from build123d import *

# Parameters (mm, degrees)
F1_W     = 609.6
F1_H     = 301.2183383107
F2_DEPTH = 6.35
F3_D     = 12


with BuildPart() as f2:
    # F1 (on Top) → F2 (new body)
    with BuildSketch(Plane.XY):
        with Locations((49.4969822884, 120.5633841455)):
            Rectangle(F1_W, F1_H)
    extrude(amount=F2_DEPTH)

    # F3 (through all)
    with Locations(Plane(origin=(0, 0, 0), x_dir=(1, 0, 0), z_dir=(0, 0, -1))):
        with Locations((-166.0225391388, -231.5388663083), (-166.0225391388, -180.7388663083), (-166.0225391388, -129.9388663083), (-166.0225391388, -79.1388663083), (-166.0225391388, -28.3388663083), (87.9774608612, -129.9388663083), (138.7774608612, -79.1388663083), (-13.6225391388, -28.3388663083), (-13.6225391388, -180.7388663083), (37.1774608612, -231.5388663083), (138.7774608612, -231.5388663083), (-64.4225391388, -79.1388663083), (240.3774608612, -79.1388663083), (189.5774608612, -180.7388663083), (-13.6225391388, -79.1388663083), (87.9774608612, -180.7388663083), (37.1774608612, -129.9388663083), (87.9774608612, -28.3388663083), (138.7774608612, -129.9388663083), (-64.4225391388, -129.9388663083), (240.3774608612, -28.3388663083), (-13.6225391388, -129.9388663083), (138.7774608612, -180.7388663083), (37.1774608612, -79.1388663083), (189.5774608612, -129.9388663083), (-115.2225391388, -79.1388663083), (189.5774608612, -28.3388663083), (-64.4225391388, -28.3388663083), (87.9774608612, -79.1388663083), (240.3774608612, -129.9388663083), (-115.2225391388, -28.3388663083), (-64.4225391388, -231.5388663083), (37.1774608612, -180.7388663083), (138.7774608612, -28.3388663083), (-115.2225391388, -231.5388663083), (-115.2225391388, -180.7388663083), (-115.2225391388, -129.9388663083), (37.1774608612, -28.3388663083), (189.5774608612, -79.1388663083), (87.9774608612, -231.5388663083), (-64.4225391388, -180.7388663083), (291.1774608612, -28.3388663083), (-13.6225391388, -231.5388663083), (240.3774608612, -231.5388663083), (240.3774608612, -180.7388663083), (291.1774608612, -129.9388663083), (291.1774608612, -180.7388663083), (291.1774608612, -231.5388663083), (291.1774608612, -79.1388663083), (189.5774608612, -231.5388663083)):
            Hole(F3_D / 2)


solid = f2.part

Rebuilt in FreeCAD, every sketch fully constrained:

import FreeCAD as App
import Part
import Sketcher

V = App.Vector
Q = App.Units.Quantity

doc = App.newDocument("Part")
body = doc.addObject("PartDesign::Body", "Body")

# Sketch on XY plane
sketch1 = doc.addObject("Sketcher::SketchObject", "Sketch")
body.addObject(sketch1)
sketch1.AttachmentSupport = (doc.XY_Plane, [""])
sketch1.MapMode = "FlatFace"
sketch1.addGeometry(Part.LineSegment(V(-255, 271, 0), V(-255, -30, 0)), False)
sketch1.addGeometry(Part.LineSegment(V(-255, -30, 0), V(354, -30, 0)), False)
sketch1.addGeometry(Part.LineSegment(V(354, -30, 0), V(354, 271, 0)), False)
sketch1.addGeometry(Part.LineSegment(V(354, 271, 0), V(-255, 271, 0)), False)
sketch1.addConstraint(Sketcher.Constraint("Coincident", 0, 2, 1, 1))
sketch1.addConstraint(Sketcher.Constraint("Coincident", 1, 2, 2, 1))
sketch1.addConstraint(Sketcher.Constraint("Coincident", 2, 2, 3, 1))
sketch1.addConstraint(Sketcher.Constraint("Coincident", 3, 2, 0, 1))
sketch1.addConstraint(Sketcher.Constraint("Vertical", 0))
sketch1.addConstraint(Sketcher.Constraint("Horizontal", 1))
sketch1.addConstraint(Sketcher.Constraint("Vertical", 2))
sketch1.addConstraint(Sketcher.Constraint("Horizontal", 3))
sketch1.addConstraint(Sketcher.Constraint("DistanceX", 1, 1, 1, 2, Q("24 in")))
sketch1.addConstraint(Sketcher.Constraint("DistanceX", 0, 2, -1, 1, Q("10.0512999 in")))
sketch1.addConstraint(Sketcher.Constraint("DistanceY", 0, 2, 0, 1, Q("301.218338 mm")))
sketch1.addConstraint(Sketcher.Constraint("DistanceY", 0, 2, -1, 1, Q("30.045785 mm")))
pad1 = doc.addObject("PartDesign::Pad", "Pad")
body.addObject(pad1)
pad1.Profile = sketch1
pad1.Length = Q("0.25 in")

# Sketch on XY plane
sketch2 = doc.addObject("Sketcher::SketchObject", "Sketch001")
body.addObject(sketch2)
sketch2.AttachmentSupport = (doc.XY_Plane, [""])
sketch2.MapMode = "FlatFace"
sketch2.addGeometry(Part.Circle(V(-166, 232, 0), V(0, 0, 1), 6), False)
sketch2.addGeometry(Part.Circle(V(-166, 181, 0), V(0, 0, 1), 6), False)
sketch2.addGeometry(Part.Circle(V(-166, 130, 0), V(0, 0, 1), 6), False)
sketch2.addGeometry(Part.Circle(V(-166, 79, 0), V(0, 0, 1), 6), False)
sketch2.addGeometry(Part.Circle(V(-166, 28, 0), V(0, 0, 1), 6), False)
sketch2.addGeometry(Part.Circle(V(88, 130, 0), V(0, 0, 1), 6), False)
sketch2.addGeometry(Part.Circle(V(139, 79, 0), V(0, 0, 1), 6), False)
sketch2.addGeometry(Part.Circle(V(-14, 28, 0), V(0, 0, 1), 6), False)
sketch2.addGeometry(Part.Circle(V(-14, 181, 0), V(0, 0, 1), 6), False)
sketch2.addGeometry(Part.Circle(V(37, 232, 0), V(0, 0, 1), 6), False)
sketch2.addGeometry(Part.Circle(V(139, 232, 0), V(0, 0, 1), 6), False)
sketch2.addGeometry(Part.Circle(V(-64, 79, 0), V(0, 0, 1), 6), False)
sketch2.addGeometry(Part.Circle(V(240, 79, 0), V(0, 0, 1), 6), False)
sketch2.addGeometry(Part.Circle(V(190, 181, 0), V(0, 0, 1), 6), False)
sketch2.addGeometry(Part.Circle(V(-14, 79, 0), V(0, 0, 1), 6), False)
sketch2.addGeometry(Part.Circle(V(88, 181, 0), V(0, 0, 1), 6), False)
sketch2.addGeometry(Part.Circle(V(37, 130, 0), V(0, 0, 1), 6), False)
sketch2.addGeometry(Part.Circle(V(88, 28, 0), V(0, 0, 1), 6), False)
sketch2.addGeometry(Part.Circle(V(139, 130, 0), V(0, 0, 1), 6), False)
sketch2.addGeometry(Part.Circle(V(-64, 130, 0), V(0, 0, 1), 6), False)
sketch2.addGeometry(Part.Circle(V(240, 28, 0), V(0, 0, 1), 6), False)
sketch2.addGeometry(Part.Circle(V(-14, 130, 0), V(0, 0, 1), 6), False)
sketch2.addGeometry(Part.Circle(V(139, 181, 0), V(0, 0, 1), 6), False)
sketch2.addGeometry(Part.Circle(V(37, 79, 0), V(0, 0, 1), 6), False)
sketch2.addGeometry(Part.Circle(V(190, 130, 0), V(0, 0, 1), 6), False)
sketch2.addGeometry(Part.Circle(V(-115, 79, 0), V(0, 0, 1), 6), False)
sketch2.addGeometry(Part.Circle(V(190, 28, 0), V(0, 0, 1), 6), False)
sketch2.addGeometry(Part.Circle(V(-64, 28, 0), V(0, 0, 1), 6), False)
sketch2.addGeometry(Part.Circle(V(88, 79, 0), V(0, 0, 1), 6), False)
sketch2.addGeometry(Part.Circle(V(240, 130, 0), V(0, 0, 1), 6), False)
sketch2.addGeometry(Part.Circle(V(-115, 28, 0), V(0, 0, 1), 6), False)
sketch2.addGeometry(Part.Circle(V(-64, 232, 0), V(0, 0, 1), 6), False)
sketch2.addGeometry(Part.Circle(V(37, 181, 0), V(0, 0, 1), 6), False)
sketch2.addGeometry(Part.Circle(V(139, 28, 0), V(0, 0, 1), 6), False)
sketch2.addGeometry(Part.Circle(V(-115, 232, 0), V(0, 0, 1), 6), False)
sketch2.addGeometry(Part.Circle(V(-115, 181, 0), V(0, 0, 1), 6), False)
sketch2.addGeometry(Part.Circle(V(-115, 130, 0), V(0, 0, 1), 6), False)
sketch2.addGeometry(Part.Circle(V(37, 28, 0), V(0, 0, 1), 6), False)
sketch2.addGeometry(Part.Circle(V(190, 79, 0), V(0, 0, 1), 6), False)
sketch2.addGeometry(Part.Circle(V(88, 232, 0), V(0, 0, 1), 6), False)
sketch2.addGeometry(Part.Circle(V(-64, 181, 0), V(0, 0, 1), 6), False)
sketch2.addGeometry(Part.Circle(V(291, 28, 0), V(0, 0, 1), 6), False)
sketch2.addGeometry(Part.Circle(V(-14, 232, 0), V(0, 0, 1), 6), False)
sketch2.addGeometry(Part.Circle(V(240, 232, 0), V(0, 0, 1), 6), False)
sketch2.addGeometry(Part.Circle(V(240, 181, 0), V(0, 0, 1), 6), False)
sketch2.addGeometry(Part.Circle(V(291, 130, 0), V(0, 0, 1), 6), False)
sketch2.addGeometry(Part.Circle(V(291, 181, 0), V(0, 0, 1), 6), False)
sketch2.addGeometry(Part.Circle(V(291, 232, 0), V(0, 0, 1), 6), False)
sketch2.addGeometry(Part.Circle(V(291, 79, 0), V(0, 0, 1), 6), False)
sketch2.addGeometry(Part.Circle(V(190, 232, 0), V(0, 0, 1), 6), False)
sketch2.addConstraint(Sketcher.Constraint("Equal", 0, 1))
sketch2.addConstraint(Sketcher.Constraint("Equal", 1, 2))
sketch2.addConstraint(Sketcher.Constraint("Equal", 2, 3))
sketch2.addConstraint(Sketcher.Constraint("Equal", 3, 4))
sketch2.addConstraint(Sketcher.Constraint("Equal", 4, 5))
sketch2.addConstraint(Sketcher.Constraint("Equal", 5, 6))
sketch2.addConstraint(Sketcher.Constraint("Equal", 6, 7))
sketch2.addConstraint(Sketcher.Constraint("Equal", 7, 8))
sketch2.addConstraint(Sketcher.Constraint("Equal", 8, 9))
sketch2.addConstraint(Sketcher.Constraint("Equal", 9, 10))
sketch2.addConstraint(Sketcher.Constraint("Equal", 10, 11))
sketch2.addConstraint(Sketcher.Constraint("Equal", 11, 12))
sketch2.addConstraint(Sketcher.Constraint("Equal", 12, 13))
sketch2.addConstraint(Sketcher.Constraint("Equal", 13, 14))
sketch2.addConstraint(Sketcher.Constraint("Equal", 14, 15))
sketch2.addConstraint(Sketcher.Constraint("Equal", 15, 16))
sketch2.addConstraint(Sketcher.Constraint("Equal", 16, 17))
sketch2.addConstraint(Sketcher.Constraint("Equal", 17, 18))
sketch2.addConstraint(Sketcher.Constraint("Equal", 18, 19))
sketch2.addConstraint(Sketcher.Constraint("Equal", 19, 20))
sketch2.addConstraint(Sketcher.Constraint("Equal", 20, 21))
sketch2.addConstraint(Sketcher.Constraint("Equal", 21, 22))
sketch2.addConstraint(Sketcher.Constraint("Equal", 22, 23))
sketch2.addConstraint(Sketcher.Constraint("Equal", 23, 24))
sketch2.addConstraint(Sketcher.Constraint("Equal", 24, 25))
sketch2.addConstraint(Sketcher.Constraint("Equal", 25, 26))
sketch2.addConstraint(Sketcher.Constraint("Equal", 26, 27))
sketch2.addConstraint(Sketcher.Constraint("Equal", 27, 28))
sketch2.addConstraint(Sketcher.Constraint("Equal", 28, 29))
sketch2.addConstraint(Sketcher.Constraint("Equal", 29, 30))
sketch2.addConstraint(Sketcher.Constraint("Equal", 30, 31))
sketch2.addConstraint(Sketcher.Constraint("Equal", 31, 32))
sketch2.addConstraint(Sketcher.Constraint("Equal", 32, 33))
sketch2.addConstraint(Sketcher.Constraint("Equal", 33, 34))
sketch2.addConstraint(Sketcher.Constraint("Equal", 34, 35))
sketch2.addConstraint(Sketcher.Constraint("Equal", 35, 36))
sketch2.addConstraint(Sketcher.Constraint("Equal", 36, 37))
sketch2.addConstraint(Sketcher.Constraint("Equal", 37, 38))
sketch2.addConstraint(Sketcher.Constraint("Equal", 38, 39))
sketch2.addConstraint(Sketcher.Constraint("Equal", 39, 40))
sketch2.addConstraint(Sketcher.Constraint("Equal", 40, 41))
sketch2.addConstraint(Sketcher.Constraint("Equal", 41, 42))
sketch2.addConstraint(Sketcher.Constraint("Equal", 42, 43))
sketch2.addConstraint(Sketcher.Constraint("Equal", 43, 44))
sketch2.addConstraint(Sketcher.Constraint("Equal", 44, 45))
sketch2.addConstraint(Sketcher.Constraint("Equal", 45, 46))
sketch2.addConstraint(Sketcher.Constraint("Equal", 46, 47))
sketch2.addConstraint(Sketcher.Constraint("Equal", 47, 48))
sketch2.addConstraint(Sketcher.Constraint("Equal", 48, 49))
sketch2.addConstraint(Sketcher.Constraint("Horizontal", 2, 3, 5, 3))
sketch2.addConstraint(Sketcher.Constraint("Horizontal", 3, 3, 6, 3))
sketch2.addConstraint(Sketcher.Constraint("Horizontal", 4, 3, 7, 3))
sketch2.addConstraint(Sketcher.Constraint("Horizontal", 1, 3, 8, 3))
sketch2.addConstraint(Sketcher.Constraint("Horizontal", 0, 3, 9, 3))
sketch2.addConstraint(Sketcher.Constraint("Horizontal", 9, 3, 10, 3))
sketch2.addConstraint(Sketcher.Constraint("Horizontal", 6, 3, 11, 3))
sketch2.addConstraint(Sketcher.Constraint("Horizontal", 11, 3, 12, 3))
sketch2.addConstraint(Sketcher.Constraint("Horizontal", 8, 3, 13, 3))
sketch2.addConstraint(Sketcher.Constraint("Horizontal", 12, 3, 14, 3))
sketch2.addConstraint(Sketcher.Constraint("Horizontal", 13, 3, 15, 3))
sketch2.addConstraint(Sketcher.Constraint("Horizontal", 5, 3, 16, 3))
sketch2.addConstraint(Sketcher.Constraint("Horizontal", 7, 3, 17, 3))
sketch2.addConstraint(Sketcher.Constraint("Horizontal", 16, 3, 18, 3))
sketch2.addConstraint(Sketcher.Constraint("Horizontal", 18, 3, 19, 3))
sketch2.addConstraint(Sketcher.Constraint("Horizontal", 17, 3, 20, 3))
sketch2.addConstraint(Sketcher.Constraint("Horizontal", 19, 3, 21, 3))
sketch2.addConstraint(Sketcher.Constraint("Horizontal", 15, 3, 22, 3))
sketch2.addConstraint(Sketcher.Constraint("Horizontal", 14, 3, 23, 3))
sketch2.addConstraint(Sketcher.Constraint("Horizontal", 21, 3, 24, 3))
sketch2.addConstraint(Sketcher.Constraint("Horizontal", 23, 3, 25, 3))
sketch2.addConstraint(Sketcher.Constraint("Horizontal", 20, 3, 26, 3))
sketch2.addConstraint(Sketcher.Constraint("Horizontal", 26, 3, 27, 3))
sketch2.addConstraint(Sketcher.Constraint("Horizontal", 25, 3, 28, 3))
sketch2.addConstraint(Sketcher.Constraint("Horizontal", 24, 3, 29, 3))
sketch2.addConstraint(Sketcher.Constraint("Horizontal", 27, 3, 30, 3))
sketch2.addConstraint(Sketcher.Constraint("Horizontal", 10, 3, 31, 3))
sketch2.addConstraint(Sketcher.Constraint("Horizontal", 22, 3, 32, 3))
sketch2.addConstraint(Sketcher.Constraint("Horizontal", 30, 3, 33, 3))
sketch2.addConstraint(Sketcher.Constraint("Horizontal", 31, 3, 34, 3))
sketch2.addConstraint(Sketcher.Constraint("Horizontal", 32, 3, 35, 3))
sketch2.addConstraint(Sketcher.Constraint("Horizontal", 29, 3, 36, 3))
sketch2.addConstraint(Sketcher.Constraint("Horizontal", 33, 3, 37, 3))
sketch2.addConstraint(Sketcher.Constraint("Horizontal", 28, 3, 38, 3))
sketch2.addConstraint(Sketcher.Constraint("Horizontal", 34, 3, 39, 3))
sketch2.addConstraint(Sketcher.Constraint("Horizontal", 35, 3, 40, 3))
sketch2.addConstraint(Sketcher.Constraint("Horizontal", 37, 3, 41, 3))
sketch2.addConstraint(Sketcher.Constraint("Horizontal", 39, 3, 42, 3))
sketch2.addConstraint(Sketcher.Constraint("Horizontal", 42, 3, 43, 3))
sketch2.addConstraint(Sketcher.Constraint("Horizontal", 40, 3, 44, 3))
sketch2.addConstraint(Sketcher.Constraint("Horizontal", 36, 3, 45, 3))
sketch2.addConstraint(Sketcher.Constraint("Horizontal", 44, 3, 46, 3))
sketch2.addConstraint(Sketcher.Constraint("Horizontal", 43, 3, 47, 3))
sketch2.addConstraint(Sketcher.Constraint("Horizontal", 38, 3, 48, 3))
sketch2.addConstraint(Sketcher.Constraint("Horizontal", 47, 3, 49, 3))
sketch2.addConstraint(Sketcher.Constraint("Vertical", 0, 3, 1, 3))
sketch2.addConstraint(Sketcher.Constraint("Vertical", 1, 3, 2, 3))
sketch2.addConstraint(Sketcher.Constraint("Vertical", 2, 3, 3, 3))
sketch2.addConstraint(Sketcher.Constraint("Vertical", 3, 3, 4, 3))
sketch2.addConstraint(Sketcher.Constraint("Vertical", 7, 3, 8, 3))
sketch2.addConstraint(Sketcher.Constraint("Vertical", 6, 3, 10, 3))
sketch2.addConstraint(Sketcher.Constraint("Vertical", 8, 3, 14, 3))
sketch2.addConstraint(Sketcher.Constraint("Vertical", 5, 3, 15, 3))
sketch2.addConstraint(Sketcher.Constraint("Vertical", 9, 3, 16, 3))
sketch2.addConstraint(Sketcher.Constraint("Vertical", 15, 3, 17, 3))
sketch2.addConstraint(Sketcher.Constraint("Vertical", 10, 3, 18, 3))
sketch2.addConstraint(Sketcher.Constraint("Vertical", 11, 3, 19, 3))
sketch2.addConstraint(Sketcher.Constraint("Vertical", 12, 3, 20, 3))
sketch2.addConstraint(Sketcher.Constraint("Vertical", 14, 3, 21, 3))
sketch2.addConstraint(Sketcher.Constraint("Vertical", 18, 3, 22, 3))
sketch2.addConstraint(Sketcher.Constraint("Vertical", 16, 3, 23, 3))
sketch2.addConstraint(Sketcher.Constraint("Vertical", 13, 3, 24, 3))
sketch2.addConstraint(Sketcher.Constraint("Vertical", 24, 3, 26, 3))
sketch2.addConstraint(Sketcher.Constraint("Vertical", 19, 3, 27, 3))
sketch2.addConstraint(Sketcher.Constraint("Vertical", 17, 3, 28, 3))
sketch2.addConstraint(Sketcher.Constraint("Vertical", 20, 3, 29, 3))
sketch2.addConstraint(Sketcher.Constraint("Vertical", 25, 3, 30, 3))
sketch2.addConstraint(Sketcher.Constraint("Vertical", 27, 3, 31, 3))
sketch2.addConstraint(Sketcher.Constraint("Vertical", 23, 3, 32, 3))
sketch2.addConstraint(Sketcher.Constraint("Vertical", 22, 3, 33, 3))
sketch2.addConstraint(Sketcher.Constraint("Vertical", 30, 3, 34, 3))
sketch2.addConstraint(Sketcher.Constraint("Vertical", 34, 3, 35, 3))
sketch2.addConstraint(Sketcher.Constraint("Vertical", 35, 3, 36, 3))
sketch2.addConstraint(Sketcher.Constraint("Vertical", 32, 3, 37, 3))
sketch2.addConstraint(Sketcher.Constraint("Vertical", 26, 3, 38, 3))
sketch2.addConstraint(Sketcher.Constraint("Vertical", 28, 3, 39, 3))
sketch2.addConstraint(Sketcher.Constraint("Vertical", 31, 3, 40, 3))
sketch2.addConstraint(Sketcher.Constraint("Vertical", 21, 3, 42, 3))
sketch2.addConstraint(Sketcher.Constraint("Vertical", 29, 3, 43, 3))
sketch2.addConstraint(Sketcher.Constraint("Vertical", 43, 3, 44, 3))
sketch2.addConstraint(Sketcher.Constraint("Vertical", 41, 3, 45, 3))
sketch2.addConstraint(Sketcher.Constraint("Vertical", 45, 3, 46, 3))
sketch2.addConstraint(Sketcher.Constraint("Vertical", 46, 3, 47, 3))
sketch2.addConstraint(Sketcher.Constraint("Vertical", 47, 3, 48, 3))
sketch2.addConstraint(Sketcher.Constraint("Vertical", 38, 3, 49, 3))
sketch2.addConstraint(Sketcher.Constraint("DistanceY", 1, 3, 0, 3, Q("2 in")))
sketch2.addConstraint(Sketcher.Constraint("DistanceY", 2, 3, 1, 3, Q("2 in")))
sketch2.addConstraint(Sketcher.Constraint("DistanceY", 3, 3, 2, 3, Q("2 in")))
sketch2.addConstraint(Sketcher.Constraint("DistanceY", 4, 3, 3, 3, Q("2 in")))
sketch2.addConstraint(Sketcher.Constraint("DistanceX", 2, 3, 5, 3, Q("10 in")))
sketch2.addConstraint(Sketcher.Constraint("DistanceX", 5, 3, 6, 3, Q("2 in")))
sketch2.addConstraint(Sketcher.Constraint("DistanceX", 7, 3, 5, 3, Q("4 in")))
sketch2.addConstraint(Sketcher.Constraint("DistanceX", 8, 3, 9, 3, Q("2 in")))
sketch2.addConstraint(Sketcher.Constraint("DistanceX", 11, 3, 7, 3, Q("2 in")))
sketch2.addConstraint(Sketcher.Constraint("DistanceX", 6, 3, 12, 3, Q("4 in")))
sketch2.addConstraint(Sketcher.Constraint("DistanceX", 10, 3, 13, 3, Q("2 in")))
sketch2.addConstraint(Sketcher.Constraint("DistanceX", 3, 3, 25, 3, Q("2 in")))
sketch2.addConstraint(Sketcher.Constraint("DistanceX", 20, 3, 41, 3, Q("2 in")))
sketch2.addConstraint(Sketcher.Constraint("Diameter", 0, Q("12 mm")))
sketch2.addConstraint(Sketcher.Constraint("DistanceX", 0, 3, -1, 1, Q("166.022539 mm")))
sketch2.addConstraint(Sketcher.Constraint("DistanceY", -1, 1, 0, 3, Q("231.538866 mm")))
doc.recompute()
hole = doc.addObject("PartDesign::Hole", "Hole")
body.addObject(hole)
hole.Profile = sketch2
hole.ThreadType = "None"
hole.Diameter = 12
hole.DepthType = "ThroughAll"
hole.Reversed = True

doc.recompute()
